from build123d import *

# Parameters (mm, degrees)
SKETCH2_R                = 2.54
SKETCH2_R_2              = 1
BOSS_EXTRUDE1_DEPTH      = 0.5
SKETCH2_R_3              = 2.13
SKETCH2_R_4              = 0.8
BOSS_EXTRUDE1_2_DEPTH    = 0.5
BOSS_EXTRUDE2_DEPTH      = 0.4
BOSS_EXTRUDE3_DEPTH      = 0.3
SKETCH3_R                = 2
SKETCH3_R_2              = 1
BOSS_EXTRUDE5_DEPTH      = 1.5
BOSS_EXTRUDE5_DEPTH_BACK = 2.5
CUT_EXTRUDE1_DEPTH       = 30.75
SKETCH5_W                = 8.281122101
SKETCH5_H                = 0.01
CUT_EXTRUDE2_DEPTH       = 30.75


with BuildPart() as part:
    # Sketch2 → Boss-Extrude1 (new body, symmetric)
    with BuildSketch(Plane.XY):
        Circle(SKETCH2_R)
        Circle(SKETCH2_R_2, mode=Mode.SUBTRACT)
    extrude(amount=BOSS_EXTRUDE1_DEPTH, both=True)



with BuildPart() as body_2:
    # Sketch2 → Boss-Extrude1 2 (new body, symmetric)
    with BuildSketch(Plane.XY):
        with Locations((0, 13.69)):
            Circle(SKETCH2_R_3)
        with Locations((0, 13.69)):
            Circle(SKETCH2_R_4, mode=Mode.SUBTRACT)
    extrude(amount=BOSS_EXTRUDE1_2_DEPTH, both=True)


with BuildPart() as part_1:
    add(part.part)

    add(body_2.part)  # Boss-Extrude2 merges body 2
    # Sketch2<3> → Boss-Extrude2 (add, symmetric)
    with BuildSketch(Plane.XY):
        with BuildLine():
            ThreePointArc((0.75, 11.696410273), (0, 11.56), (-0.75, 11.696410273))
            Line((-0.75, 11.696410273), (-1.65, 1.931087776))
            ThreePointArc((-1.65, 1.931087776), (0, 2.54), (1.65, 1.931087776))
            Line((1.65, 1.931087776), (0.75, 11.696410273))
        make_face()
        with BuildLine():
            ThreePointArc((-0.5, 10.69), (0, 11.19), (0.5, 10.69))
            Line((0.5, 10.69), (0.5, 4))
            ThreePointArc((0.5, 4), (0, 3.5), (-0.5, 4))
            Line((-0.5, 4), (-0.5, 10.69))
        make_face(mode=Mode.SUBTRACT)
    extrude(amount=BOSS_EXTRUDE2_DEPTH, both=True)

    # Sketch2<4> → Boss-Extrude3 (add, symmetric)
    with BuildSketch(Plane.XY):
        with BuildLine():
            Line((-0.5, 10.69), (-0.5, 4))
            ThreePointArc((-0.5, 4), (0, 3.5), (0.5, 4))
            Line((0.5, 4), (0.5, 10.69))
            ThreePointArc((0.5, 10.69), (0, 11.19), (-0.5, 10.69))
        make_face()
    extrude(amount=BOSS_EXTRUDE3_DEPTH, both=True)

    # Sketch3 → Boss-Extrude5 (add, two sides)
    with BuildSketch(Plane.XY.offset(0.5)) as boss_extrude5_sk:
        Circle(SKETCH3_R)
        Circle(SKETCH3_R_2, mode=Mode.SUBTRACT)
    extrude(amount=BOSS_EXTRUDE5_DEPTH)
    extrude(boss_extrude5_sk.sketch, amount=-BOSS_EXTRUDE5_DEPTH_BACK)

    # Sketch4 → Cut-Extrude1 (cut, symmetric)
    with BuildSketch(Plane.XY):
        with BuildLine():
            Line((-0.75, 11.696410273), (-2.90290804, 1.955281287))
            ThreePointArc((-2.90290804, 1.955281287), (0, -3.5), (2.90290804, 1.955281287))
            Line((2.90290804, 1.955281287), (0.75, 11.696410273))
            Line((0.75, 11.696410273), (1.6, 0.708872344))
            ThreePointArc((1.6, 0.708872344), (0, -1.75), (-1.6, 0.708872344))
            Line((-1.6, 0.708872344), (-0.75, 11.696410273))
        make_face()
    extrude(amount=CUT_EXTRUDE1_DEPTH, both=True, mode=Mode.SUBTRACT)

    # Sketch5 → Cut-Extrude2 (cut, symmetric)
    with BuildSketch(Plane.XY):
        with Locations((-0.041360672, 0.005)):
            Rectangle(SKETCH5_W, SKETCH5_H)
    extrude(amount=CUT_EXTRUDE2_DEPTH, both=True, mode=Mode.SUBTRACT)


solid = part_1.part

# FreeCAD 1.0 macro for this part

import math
import FreeCAD as App
import Part
import Sketcher
from FreeCAD import Vector

doc = App.newDocument("Part")
body = doc.addObject("PartDesign::Body", "Body")

# Sketch on XY plane
sketch1 = body.newObject("Sketcher::SketchObject", "Sketch")
sketch1.AttachmentSupport = (doc.getObject("XY_Plane"), [""])
sketch1.MapMode = "FlatFace"
sketch1.addGeometry([
    Part.Circle(Vector(0, 0, 0), Vector(0, 0, 1), 2.5),
    Part.Circle(Vector(0, 0, 0), Vector(0, 0, 1), 1),
], False)
sketch1.addConstraint([
    Sketcher.Constraint("Coincident", 0, 3, -1, 1),
    Sketcher.Constraint("Coincident", 1, 3, -1, 1),
    Sketcher.Constraint("Diameter", 1, 2.0),
    Sketcher.Constraint("Diameter", 0, 5.08),
])
pad1 = body.newObject("PartDesign::Pad", "Pad")
pad1.Profile = sketch1
pad1.Length = 1
pad1.Midplane = True
body2 = doc.addObject("PartDesign::Body", "Body001")

# Sketch on XY plane
sketch2 = body2.newObject("Sketcher::SketchObject", "Sketch001")
sketch2.AttachmentSupport = (doc.getObject("XY_Plane001"), [""])
sketch2.MapMode = "FlatFace"
sketch2.addGeometry([
    Part.Circle(Vector(0, 13.7, 0), Vector(0, 0, 1), 2.1),
    Part.Circle(Vector(0, 13.7, 0), Vector(0, 0, 1), 0.8),
], False)
sketch2.addConstraint([
    Sketcher.Constraint("Coincident", 1, 3, 0, 3),
    Sketcher.Constraint("PointOnObject", 0, 3, -2),
    Sketcher.Constraint("Diameter", 1, 1.6),
    Sketcher.Constraint("Diameter", 0, 4.26),
    Sketcher.Constraint("DistanceY", -1, 1, 0, 3, 13.69),
])
pad2 = body2.newObject("PartDesign::Pad", "Pad001")
pad2.Profile = sketch2
pad2.Length = 1
pad2.Midplane = True
body.AllowCompound = True
doc.recompute()

boolean = body.newObject("PartDesign::Boolean", "Boolean")
boolean.Type = "Fuse"
boolean.addObjects([body2])

# Sketch on XY plane
sketch3 = body.newObject("Sketcher::SketchObject", "Sketch002")
sketch3.AttachmentSupport = (doc.getObject("XY_Plane"), [""])
sketch3.MapMode = "FlatFace"
sketch3.addGeometry([
    Part.ArcOfCircle(Part.Circle(Vector(0, 13.7, 0), Vector(0, 0, 1), 2.1), math.radians(-111), math.radians(-69)),  # 0
    Part.LineSegment(Vector(-0.8, 11.7, 0), Vector(-1.6, 1.9, 0)),  # 1
    Part.ArcOfCircle(Part.Circle(Vector(0, 0, 0), Vector(0, 0, 1), 2.5), math.radians(49), math.radians(131)),  # 2
    Part.LineSegment(Vector(1.6, 1.9, 0), Vector(0.8, 11.7, 0)),  # 3
    Part.LineSegment(Vector(-0.5, 4, 0), Vector(-0.5, 10.7, 0)),  # 4
    Part.ArcOfCircle(Part.Circle(Vector(0, 10.7, 0), Vector(0, 0, 1), 0.5), math.radians(0), math.radians(180)),  # 5
    Part.LineSegment(Vector(0.5, 10.7, 0), Vector(0.5, 4, 0)),  # 6
    Part.ArcOfCircle(Part.Circle(Vector(0, 4, 0), Vector(0, 0, 1), 0.5), math.radians(180), math.radians(360)),  # 7
], False)
sketch3.addConstraint([
    Sketcher.Constraint("Coincident", 0, 1, 1, 1),
    Sketcher.Constraint("Coincident", 1, 2, 2, 2),
    Sketcher.Constraint("Coincident", 2, 1, 3, 1),
    Sketcher.Constraint("Coincident", 3, 2, 0, 2),
    Sketcher.Constraint("Tangent", 4, 2, 5, 2),
    Sketcher.Constraint("Tangent", 5, 1, 6, 1),
    Sketcher.Constraint("Tangent", 6, 2, 7, 2),
    Sketcher.Constraint("Tangent", 7, 1, 4, 1),
    Sketcher.Constraint("Vertical", 4),
    Sketcher.Constraint("Vertical", 6),
    Sketcher.Constraint("Coincident", 2, 3, -1, 1),
    Sketcher.Constraint("Symmetric", 0, 1, 3, 2, -2),
    Sketcher.Constraint("PointOnObject", 5, 3, -2),
    Sketcher.Constraint("Horizontal", 1, 2, 2, 1),
    Sketcher.Constraint("Radius", 5, 0.5),
    Sketcher.Constraint("Radius", 0, 2.13),
    Sketcher.Constraint("Radius", 2, 2.54),
    Sketcher.Constraint("DistanceY", -1, 1, 7, 3, 4.0),
    Sketcher.Constraint("DistanceY", 5, 3, 0, 3, 3.0),
    Sketcher.Constraint("DistanceY", 4, 1, 4, 2, 6.69),
    Sketcher.Constraint("DistanceX", 1, 2, 0, 1, 0.9),
    Sketcher.Constraint("DistanceX", 1, 2, 2, 1, 3.3),
])
pad3 = body.newObject("PartDesign::Pad", "Pad002")
pad3.Profile = sketch3
pad3.Length = 0.8
pad3.Midplane = True

# Sketch on XY plane
sketch4 = body.newObject("Sketcher::SketchObject", "Sketch003")
sketch4.AttachmentSupport = (doc.getObject("XY_Plane"), [""])
sketch4.MapMode = "FlatFace"
sketch4.addGeometry([
    Part.LineSegment(Vector(-0.5, 10.7, 0), Vector(-0.5, 4, 0)),
    Part.ArcOfCircle(Part.Circle(Vector(0, 4, 0), Vector(0, 0, 1), 0.5), math.radians(180), math.radians(360)),
    Part.LineSegment(Vector(0.5, 4, 0), Vector(0.5, 10.7, 0)),
    Part.ArcOfCircle(Part.Circle(Vector(0, 10.7, 0), Vector(0, 0, 1), 0.5), math.radians(0), math.radians(180)),
], False)
sketch4.addConstraint([
    Sketcher.Constraint("Tangent", 0, 2, 1, 1),
    Sketcher.Constraint("Tangent", 1, 2, 2, 1),
    Sketcher.Constraint("Tangent", 2, 2, 3, 1),
    Sketcher.Constraint("Tangent", 3, 2, 0, 1),
    Sketcher.Constraint("Vertical", 0),
    Sketcher.Constraint("Vertical", 2),
    Sketcher.Constraint("PointOnObject", 1, 3, -2),
    Sketcher.Constraint("Radius", 1, 0.5),
    Sketcher.Constraint("DistanceY", -1, 1, 1, 3, 4.0),
    Sketcher.Constraint("DistanceY", 0, 2, 0, 1, 6.69),
])
pad4 = body.newObject("PartDesign::Pad", "Pad003")
pad4.Profile = sketch4
pad4.Length = 0.6
pad4.Midplane = True

# Sketch on XY plane
sketch5 = body.newObject("Sketcher::SketchObject", "Sketch004")
sketch5.AttachmentSupport = (doc.getObject("XY_Plane"), [""])
sketch5.MapMode = "FlatFace"
sketch5.AttachmentOffset = App.Placement(Vector(0, 0, 0.5), App.Rotation())
sketch5.addGeometry([
    Part.Circle(Vector(0, 0, 0), Vector(0, 0, 1), 2),
    Part.Circle(Vector(0, 0, 0), Vector(0, 0, 1), 1),
], False)
sketch5.addConstraint([
    Sketcher.Constraint("Coincident", 0, 3, -1, 1),
    Sketcher.Constraint("Coincident", 1, 3, -1, 1),
    Sketcher.Constraint("Diameter", 0, 4.0),
    Sketcher.Constraint("Diameter", 1, 2.0),
])
pad5 = body.newObject("PartDesign::Pad", "Pad004")
pad5.Profile = sketch5
pad5.Type = "TwoLengths"
pad5.Length = 1.5
pad5.Length2 = 2.5

# Sketch on XY plane
sketch6 = body.newObject("Sketcher::SketchObject", "Sketch005")
sketch6.AttachmentSupport = (doc.getObject("XY_Plane"), [""])
sketch6.MapMode = "FlatFace"
sketch6.addGeometry([
    Part.LineSegment(Vector(-0.8, 11.7, 0), Vector(-2.9, 2, 0)),  # 0
    Part.ArcOfCircle(Part.Circle(Vector(0, 0, 0), Vector(0, 0, 1), 3.5), math.radians(146), math.radians(394)),  # 1
    Part.LineSegment(Vector(2.9, 2, 0), Vector(0.8, 11.7, 0)),  # 2
    Part.LineSegment(Vector(0.8, 11.7, 0), Vector(1.6, 0.7, 0)),  # 3
    Part.ArcOfCircle(Part.Circle(Vector(0, 0, 0), Vector(0, 0, 1), 1.8), math.radians(156), math.radians(384)),  # 4
    Part.LineSegment(Vector(-1.6, 0.7, 0), Vector(-0.8, 11.7, 0)),  # 5
], False)
sketch6.addConstraint([
    Sketcher.Constraint("Coincident", 0, 2, 1, 1),
    Sketcher.Constraint("Coincident", 1, 2, 2, 1),
    Sketcher.Constraint("Coincident", 2, 2, 3, 1),
    Sketcher.Constraint("Coincident", 3, 2, 4, 2),
    Sketcher.Constraint("Coincident", 4, 1, 5, 1),
    Sketcher.Constraint("Coincident", 5, 2, 0, 1),
    Sketcher.Constraint("Coincident", 1, 3, -1, 1),
    Sketcher.Constraint("Coincident", 4, 3, -1, 1),
    Sketcher.Constraint("Symmetric", 2, 2, 5, 2, -2),
    Sketcher.Constraint("Horizontal", 0, 2, 1, 2),
    Sketcher.Constraint("Horizontal", 3, 2, 4, 1),
    Sketcher.Constraint("Radius", 1, 3.5),
    Sketcher.Constraint("Radius", 4, 1.75),
    Sketcher.Constraint("DistanceX", -1, 1, 3, 2, 1.6),
    Sketcher.Constraint("DistanceX", 5, 2, 2, 2, 1.5),
    Sketcher.Constraint("DistanceX", 0, 2, -1, 1, 2.902908),
    Sketcher.Constraint("DistanceY", -1, 1, 2, 2, 11.69641),
])
pocket1 = body.newObject("PartDesign::Pocket", "Pocket")
pocket1.Profile = sketch6
pocket1.Length = 61.5
pocket1.Midplane = True

# Sketch on XY plane
sketch7 = body.newObject("Sketcher::SketchObject", "Sketch006")
sketch7.AttachmentSupport = (doc.getObject("XY_Plane"), [""])
sketch7.MapMode = "FlatFace"
sketch7.addGeometry([
    Part.LineSegment(Vector(-4.182, 0.01, 0), Vector(-4.182, 0, 0)),
    Part.LineSegment(Vector(-4.182, 0, 0), Vector(4.099, 0, 0)),
    Part.LineSegment(Vector(4.099, 0, 0), Vector(4.099, 0.01, 0)),
    Part.LineSegment(Vector(4.099, 0.01, 0), Vector(-4.182, 0.01, 0)),
], False)
sketch7.addConstraint([
    Sketcher.Constraint("Coincident", 0, 2, 1, 1),
    Sketcher.Constraint("Coincident", 1, 2, 2, 1),
    Sketcher.Constraint("Coincident", 2, 2, 3, 1),
    Sketcher.Constraint("Coincident", 3, 2, 0, 1),
    Sketcher.Constraint("Vertical", 0),
    Sketcher.Constraint("Horizontal", 1),
    Sketcher.Constraint("Vertical", 2),
    Sketcher.Constraint("Horizontal", 3),
    Sketcher.Constraint("PointOnObject", 0, 2, -1),
    Sketcher.Constraint("DistanceY", 0, 2, 0, 1, 0.01),
    Sketcher.Constraint("DistanceX", -1, 1, 1, 2, 4.0992),
    Sketcher.Constraint("DistanceX", 1, 1, 1, 2, 8.281122),
])
pocket2 = body.newObject("PartDesign::Pocket", "Pocket001")
pocket2.Profile = sketch7
pocket2.Length = 61.5
pocket2.Midplane = True

doc.recompute()
